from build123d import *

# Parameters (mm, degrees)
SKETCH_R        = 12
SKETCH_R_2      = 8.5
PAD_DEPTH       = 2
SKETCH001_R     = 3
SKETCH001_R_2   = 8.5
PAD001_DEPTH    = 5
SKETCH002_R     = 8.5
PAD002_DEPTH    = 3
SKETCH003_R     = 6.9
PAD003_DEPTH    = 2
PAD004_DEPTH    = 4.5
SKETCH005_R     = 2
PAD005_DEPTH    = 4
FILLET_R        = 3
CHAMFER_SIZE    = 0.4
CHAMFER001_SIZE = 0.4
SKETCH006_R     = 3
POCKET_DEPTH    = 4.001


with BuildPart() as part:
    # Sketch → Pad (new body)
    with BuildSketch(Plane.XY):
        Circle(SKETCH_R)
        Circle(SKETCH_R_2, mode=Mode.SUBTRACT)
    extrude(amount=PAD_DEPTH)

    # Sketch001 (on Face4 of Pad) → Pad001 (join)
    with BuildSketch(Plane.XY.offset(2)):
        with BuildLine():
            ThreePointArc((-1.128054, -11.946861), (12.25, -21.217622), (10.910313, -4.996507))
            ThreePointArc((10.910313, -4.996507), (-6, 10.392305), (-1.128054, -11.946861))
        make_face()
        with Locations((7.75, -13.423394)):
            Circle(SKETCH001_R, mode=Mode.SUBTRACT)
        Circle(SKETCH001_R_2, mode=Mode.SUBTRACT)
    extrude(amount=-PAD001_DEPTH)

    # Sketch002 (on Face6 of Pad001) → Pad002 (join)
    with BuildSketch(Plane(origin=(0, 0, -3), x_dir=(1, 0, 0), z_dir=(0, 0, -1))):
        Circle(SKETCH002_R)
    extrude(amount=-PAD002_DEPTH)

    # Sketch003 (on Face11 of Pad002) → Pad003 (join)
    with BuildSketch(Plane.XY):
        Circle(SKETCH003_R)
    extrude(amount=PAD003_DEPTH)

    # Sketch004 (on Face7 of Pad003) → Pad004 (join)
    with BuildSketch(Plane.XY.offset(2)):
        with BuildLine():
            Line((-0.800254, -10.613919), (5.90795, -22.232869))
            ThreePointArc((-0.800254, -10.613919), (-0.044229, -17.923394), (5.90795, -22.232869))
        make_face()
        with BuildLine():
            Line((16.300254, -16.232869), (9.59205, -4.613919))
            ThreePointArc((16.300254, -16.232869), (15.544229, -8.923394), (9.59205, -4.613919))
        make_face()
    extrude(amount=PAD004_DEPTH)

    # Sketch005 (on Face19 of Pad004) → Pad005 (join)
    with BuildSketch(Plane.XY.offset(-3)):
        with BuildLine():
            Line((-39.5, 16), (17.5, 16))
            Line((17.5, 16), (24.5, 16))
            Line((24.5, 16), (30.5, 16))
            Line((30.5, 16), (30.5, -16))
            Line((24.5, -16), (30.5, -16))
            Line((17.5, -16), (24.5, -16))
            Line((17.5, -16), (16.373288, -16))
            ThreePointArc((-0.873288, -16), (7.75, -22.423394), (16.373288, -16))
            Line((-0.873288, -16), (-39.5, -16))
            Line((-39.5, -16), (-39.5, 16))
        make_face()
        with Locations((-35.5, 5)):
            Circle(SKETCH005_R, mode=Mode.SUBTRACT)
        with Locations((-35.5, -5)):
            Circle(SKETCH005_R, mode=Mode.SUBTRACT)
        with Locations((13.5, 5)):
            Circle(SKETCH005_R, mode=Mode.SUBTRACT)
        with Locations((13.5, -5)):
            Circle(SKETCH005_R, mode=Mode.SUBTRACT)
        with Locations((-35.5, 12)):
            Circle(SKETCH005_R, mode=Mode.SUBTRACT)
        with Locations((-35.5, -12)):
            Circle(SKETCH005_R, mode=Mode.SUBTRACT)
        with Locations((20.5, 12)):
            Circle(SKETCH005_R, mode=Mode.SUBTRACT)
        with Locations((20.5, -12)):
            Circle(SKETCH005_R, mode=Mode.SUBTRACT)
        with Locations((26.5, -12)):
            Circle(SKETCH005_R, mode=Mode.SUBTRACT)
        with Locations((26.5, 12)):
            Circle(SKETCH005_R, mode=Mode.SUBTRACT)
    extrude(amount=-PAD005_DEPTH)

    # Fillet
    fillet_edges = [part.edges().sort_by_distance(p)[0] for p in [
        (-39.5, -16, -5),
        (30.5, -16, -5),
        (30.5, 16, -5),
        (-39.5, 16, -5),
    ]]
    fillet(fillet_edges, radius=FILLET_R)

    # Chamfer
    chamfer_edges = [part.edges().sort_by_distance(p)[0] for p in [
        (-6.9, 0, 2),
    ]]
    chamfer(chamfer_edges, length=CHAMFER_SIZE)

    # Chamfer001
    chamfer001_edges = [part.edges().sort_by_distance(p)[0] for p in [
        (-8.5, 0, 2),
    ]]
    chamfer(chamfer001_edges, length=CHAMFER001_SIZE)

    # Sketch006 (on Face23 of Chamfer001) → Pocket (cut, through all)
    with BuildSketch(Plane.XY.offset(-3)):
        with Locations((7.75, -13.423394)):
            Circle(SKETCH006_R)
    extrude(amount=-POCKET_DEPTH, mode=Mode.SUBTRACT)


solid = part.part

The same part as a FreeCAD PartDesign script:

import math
import FreeCAD as App
import Part
import Sketcher
from FreeCAD import Vector
Q = App.Units.Quantity


def edges_at(feature, points):
    """Names of the edges that pass closest to the given points."""
    edges = feature.Shape.Edges
    near = lambda p: min(range(len(edges)), key=lambda i: edges[i].distToShape(Part.Vertex(*p))[0])
    return sorted({f"Edge{near(p) + 1}" for p in points})

doc = App.newDocument("Part")
body = doc.addObject("PartDesign::Body", "Body")

# Sketch on XY plane
sketch1 = body.newObject("Sketcher::SketchObject", "Sketch")
sketch1.AttachmentSupport = (doc.getObject("XY_Plane"), [""])
sketch1.MapMode = "FlatFace"
sketch1.addGeometry([
    Part.Circle(Vector(0, 0, 0), Vector(0, 0, 1), 12),
    Part.Circle(Vector(0, 0, 0), Vector(0, 0, 1), 8),
], False)
sketch1.addConstraint([
    Sketcher.Constraint("Coincident", 0, 3, -1, 1),
    Sketcher.Constraint("Coincident", 1, 3, -1, 1),
    Sketcher.Constraint("Diameter", 0, Q("24 mm")),
    Sketcher.Constraint("Diameter", 1, Q("17 mm")),
])
pad1 = body.newObject("PartDesign::Pad", "Pad")
pad1.Profile = sketch1
pad1.Length = 2

# Sketch on XY plane
sketch2 = body.newObject("Sketcher::SketchObject", "Sketch001")
sketch2.AttachmentSupport = (doc.getObject("XY_Plane"), [""])
sketch2.MapMode = "FlatFace"
sketch2.AttachmentOffset = App.Placement(Vector(0, 0, 2), App.Rotation())
sketch2.addGeometry([
    Part.ArcOfCircle(Part.Circle(Vector(7.8, -13.4, 0), Vector(0, 0, 1), 9), math.radians(171), math.radians(429)),
    Part.ArcOfCircle(Part.Circle(Vector(0, 0, 0), Vector(0, 0, 1), 12), math.radians(-25), math.radians(265)),
    Part.Circle(Vector(7.8, -13.4, 0), Vector(0, 0, 1), 3),
    Part.Circle(Vector(0, 0, 0), Vector(0, 0, 1), 8.5),
], False)
sketch2.addConstraint([
    Sketcher.Constraint("Coincident", 0, 1, 1, 2),
    Sketcher.Constraint("Coincident", 1, 1, 0, 2),
    Sketcher.Constraint("Coincident", 1, 3, -1, 1),
    Sketcher.Constraint("Coincident", 3, 3, -1, 1),
    Sketcher.Constraint("Coincident", 2, 3, 0, 3),
    Sketcher.Constraint("Diameter", 2, Q("6 mm")),
    Sketcher.Constraint("Diameter", 3, Q("17 mm")),
    Sketcher.Constraint("Radius", 0, Q("9 mm")),
    Sketcher.Constraint("Radius", 1, Q("12 mm")),
    Sketcher.Constraint("DistanceX", -1, 1, 0, 3, Q("7.75 mm")),
    Sketcher.Constraint("DistanceY", 0, 3, -1, 1, Q("13.423394 mm")),
])
pad2 = body.newObject("PartDesign::Pad", "Pad001")
pad2.Profile = sketch2
pad2.Length = 5
pad2.Reversed = True

# Sketch on XY plane
sketch3 = body.newObject("Sketcher::SketchObject", "Sketch002")
sketch3.AttachmentSupport = (doc.getObject("XY_Plane"), [""])
sketch3.MapMode = "FlatFace"
sketch3.AttachmentOffset = App.Placement(Vector(0, 0, -3), App.Rotation())
sketch3.addGeometry(Part.Circle(Vector(0, 0, 0), Vector(0, 0, 1), 8), False)
sketch3.addConstraint([
    Sketcher.Constraint("Coincident", 0, 3, -1, 1),
    Sketcher.Constraint("Diameter", 0, Q("17 mm")),
])
pad3 = body.newObject("PartDesign::Pad", "Pad002")
pad3.Profile = sketch3
pad3.Length = 3

# Sketch on XY plane
sketch4 = body.newObject("Sketcher::SketchObject", "Sketch003")
sketch4.AttachmentSupport = (doc.getObject("XY_Plane"), [""])
sketch4.MapMode = "FlatFace"
sketch4.addGeometry(Part.Circle(Vector(0, 0, 0), Vector(0, 0, 1), 7), False)
sketch4.addConstraint([
    Sketcher.Constraint("Coincident", 0, 3, -1, 1),
    Sketcher.Constraint("Diameter", 0, Q("13.8 mm")),
])
pad4 = body.newObject("PartDesign::Pad", "Pad003")
pad4.Profile = sketch4
pad4.Length = 2

# Sketch on XY plane
sketch5 = body.newObject("Sketcher::SketchObject", "Sketch004")
sketch5.AttachmentSupport = (doc.getObject("XY_Plane"), [""])
sketch5.MapMode = "FlatFace"
sketch5.AttachmentOffset = App.Placement(Vector(0, 0, 2), App.Rotation())
sketch5.addGeometry([
    Part.LineSegment(Vector(6, -22, 0), Vector(-1, -11, 0)),
    Part.ArcOfCircle(Part.Circle(Vector(8, -13, 0), Vector(0, 0, 1), 9), math.radians(162), math.radians(258)),
    Part.LineSegment(Vector(10, -5, 0), Vector(16, -16, 0)),
    Part.ArcOfCircle(Part.Circle(Vector(8, -13, 0), Vector(0, 0, 1), 9), math.radians(-18), math.radians(78)),
], False)
sketch5.addConstraint([
    Sketcher.Constraint("Coincident", 0, 1, 1, 2),
    Sketcher.Constraint("Coincident", 1, 1, 0, 2),
    Sketcher.Constraint("Coincident", 2, 1, 3, 2),
    Sketcher.Constraint("Coincident", 3, 1, 2, 2),
    Sketcher.Constraint("Coincident", 3, 3, 1, 3),
    Sketcher.Constraint("Equal", 1, 3),
    Sketcher.Constraint("Parallel", 0, 2),
    Sketcher.Constraint("Equal", 0, 2),
    Sketcher.Constraint("Radius", 1, Q("8.999999 mm")),
    Sketcher.Constraint("Angle", 0, Q("120 deg")),
    Sketcher.Constraint("DistanceY", 1, 1, 2, 1, Q("6 mm")),
    Sketcher.Constraint("DistanceX", -1, 1, 1, 3, Q("7.749999 mm")),
    Sketcher.Constraint("DistanceY", 0, 1, -1, 1, Q("22.232869 mm")),
])
pad5 = body.newObject("PartDesign::Pad", "Pad004")
pad5.Profile = sketch5
pad5.Length = 4.5

# Sketch on XY plane
sketch6 = body.newObject("Sketcher::SketchObject", "Sketch005")
sketch6.AttachmentSupport = (doc.getObject("XY_Plane"), [""])
sketch6.MapMode = "FlatFace"
sketch6.AttachmentOffset = App.Placement(Vector(0, 0, -3), App.Rotation())
sketch6.addGeometry([
    Part.LineSegment(Vector(30.5, 16, 0), Vector(-39.5, 16, 0)),  # 0
    Part.LineSegment(Vector(-39.5, 16, 0), Vector(-39.5, -16, 0)),  # 1
    Part.LineSegment(Vector(-39.5, -16, 0), Vector(-0.9, -16, 0)),  # 2
    Part.ArcOfCircle(Part.Circle(Vector(7.8, -13.4, 0), Vector(0, 0, 1), 9), math.radians(-163), math.radians(-17)),  # 3
    Part.LineSegment(Vector(16.4, -16, 0), Vector(30.5, -16, 0)),  # 4
    Part.LineSegment(Vector(30.5, -16, 0), Vector(30.5, 16, 0)),  # 5
    Part.Circle(Vector(26.5, -12, 0), Vector(0, 0, 1), 2),  # 6
    Part.Circle(Vector(20.5, -12, 0), Vector(0, 0, 1), 2),  # 7
    Part.Circle(Vector(13.5, -5, 0), Vector(0, 0, 1), 2),  # 8
    Part.Circle(Vector(-35.5, -12, 0), Vector(0, 0, 1), 2),  # 9
    Part.Circle(Vector(-35.5, -5, 0), Vector(0, 0, 1), 2),  # 10
    Part.Circle(Vector(13.5, 5, 0), Vector(0, 0, 1), 2),  # 11
    Part.Circle(Vector(26.5, 12, 0), Vector(0, 0, 1), 2),  # 12
    Part.Circle(Vector(20.5, 12, 0), Vector(0, 0, 1), 2),  # 13
    Part.Circle(Vector(-35.5, 5, 0), Vector(0, 0, 1), 2),  # 14
    Part.Circle(Vector(-35.5, 12, 0), Vector(0, 0, 1), 2),  # 15
], False)
sketch6.addConstraint([
    Sketcher.Constraint("Coincident", 0, 2, 1, 1),
    Sketcher.Constraint("Coincident", 1, 2, 2, 1),
    Sketcher.Constraint("Coincident", 2, 2, 3, 1),
    Sketcher.Constraint("Coincident", 3, 2, 4, 1),
    Sketcher.Constraint("Coincident", 4, 2, 5, 1),
    Sketcher.Constraint("Coincident", 5, 2, 0, 1),
    Sketcher.Constraint("Horizontal", 0),
    Sketcher.Constraint("Vertical", 1),
    Sketcher.Constraint("Horizontal", 2),
    Sketcher.Constraint("Horizontal", 4),
    Sketcher.Constraint("Vertical", 5),
    Sketcher.Constraint("Equal", 6, 7),
    Sketcher.Constraint("Equal", 7, 8),
    Sketcher.Constraint("Equal", 8, 9),
    Sketcher.Constraint("Equal", 9, 10),
    Sketcher.Constraint("Equal", 10, 11),
    Sketcher.Constraint("Equal", 11, 12),
    Sketcher.Constraint("Equal", 12, 13),
    Sketcher.Constraint("Equal", 13, 14),
    Sketcher.Constraint("Equal", 14, 15),
    Sketcher.Constraint("Symmetric", 8, 3, 11, 3, -1),
    Sketcher.Constraint("Symmetric", 6, 3, 12, 3, -1),
    Sketcher.Constraint("Symmetric", 7, 3, 13, 3, -1),
    Sketcher.Constraint("Symmetric", 10, 3, 14, 3, -1),
    Sketcher.Constraint("Symmetric", 9, 3, 15, 3, -1),
    Sketcher.Constraint("Horizontal", 6, 3, 7, 3),
    Sketcher.Constraint("Horizontal", 7, 3, 9, 3),
    Sketcher.Constraint("Horizontal", 8, 3, 10, 3),
    Sketcher.Constraint("Horizontal", 2, 2, 3, 2),
    Sketcher.Constraint("Vertical", 9, 3, 10, 3),
    Sketcher.Constraint("Diameter", 6, Q("4 mm")),
    Sketcher.Constraint("Radius", 3, Q("9 mm")),
    Sketcher.Constraint("DistanceX", 0, 2, 0, 1, Q("70 mm")),
    Sketcher.Constraint("DistanceY", 1, 2, 1, 1, Q("32 mm")),
    Sketcher.Constraint("DistanceY", 6, 3, -1, 1, Q("12 mm")),
    Sketcher.Constraint("DistanceY", 8, 3, -1, 1, Q("5 mm")),
    Sketcher.Constraint("DistanceY", -1, 1, 0, 2, Q("16 mm")),
    Sketcher.Constraint("DistanceX", 7, 3, 6, 3, Q("6 mm")),
    Sketcher.Constraint("DistanceX", 8, 3, 7, 3, Q("7 mm")),
    Sketcher.Constraint("DistanceX", 9, 3, 8, 3, Q("49 mm")),
    Sketcher.Constraint("DistanceX", 0, 2, 15, 3, Q("4 mm")),
    Sketcher.Constraint("DistanceX", -1, 1, 6, 3, Q("26.5 mm")),
    Sketcher.Constraint("DistanceX", -1, 1, 3, 3, Q("7.75 mm")),
    Sketcher.Constraint("DistanceX", 2, 1, 2, 2, Q("38.626712 mm")),
])
pad6 = body.newObject("PartDesign::Pad", "Pad005")
pad6.Profile = sketch6
pad6.Length = 4
pad6.Reversed = True
doc.recompute()

fillet = body.newObject("PartDesign::Fillet", "Fillet")
fillet.Base = (pad6, edges_at(pad6, [
    (-39.5, -16, -5),
    (30.5, -16, -5),
    (30.5, 16, -5),
    (-39.5, 16, -5),
]))
fillet.Radius = 3
doc.recompute()

chamfer = body.newObject("PartDesign::Chamfer", "Chamfer")
chamfer.Base = (fillet, edges_at(fillet, [(-6.9, 0, 2)]))
chamfer.Size = 0.4
doc.recompute()

chamfer2 = body.newObject("PartDesign::Chamfer", "Chamfer001")
chamfer2.Base = (chamfer, edges_at(chamfer, [(-8.5, 0, 2)]))
chamfer2.Size = 0.4

# Sketch on XY plane
sketch7 = body.newObject("Sketcher::SketchObject", "Sketch006")
sketch7.AttachmentSupport = (doc.getObject("XY_Plane"), [""])
sketch7.MapMode = "FlatFace"
sketch7.AttachmentOffset = App.Placement(Vector(0, 0, -3), App.Rotation())
sketch7.addGeometry(Part.Circle(Vector(7.8, -13.4, 0), Vector(0, 0, 1), 3), False)
sketch7.addConstraint([
    Sketcher.Constraint("Diameter", 0, Q("6 mm")),
    Sketcher.Constraint("DistanceX", -1, 1, 0, 3, Q("7.75 mm")),
    Sketcher.Constraint("DistanceY", 0, 3, -1, 1, Q("13.423394 mm")),
])
pocket1 = body.newObject("PartDesign::Pocket", "Pocket")
pocket1.Profile = sketch7
pocket1.Type = "ThroughAll"

doc.recompute()
